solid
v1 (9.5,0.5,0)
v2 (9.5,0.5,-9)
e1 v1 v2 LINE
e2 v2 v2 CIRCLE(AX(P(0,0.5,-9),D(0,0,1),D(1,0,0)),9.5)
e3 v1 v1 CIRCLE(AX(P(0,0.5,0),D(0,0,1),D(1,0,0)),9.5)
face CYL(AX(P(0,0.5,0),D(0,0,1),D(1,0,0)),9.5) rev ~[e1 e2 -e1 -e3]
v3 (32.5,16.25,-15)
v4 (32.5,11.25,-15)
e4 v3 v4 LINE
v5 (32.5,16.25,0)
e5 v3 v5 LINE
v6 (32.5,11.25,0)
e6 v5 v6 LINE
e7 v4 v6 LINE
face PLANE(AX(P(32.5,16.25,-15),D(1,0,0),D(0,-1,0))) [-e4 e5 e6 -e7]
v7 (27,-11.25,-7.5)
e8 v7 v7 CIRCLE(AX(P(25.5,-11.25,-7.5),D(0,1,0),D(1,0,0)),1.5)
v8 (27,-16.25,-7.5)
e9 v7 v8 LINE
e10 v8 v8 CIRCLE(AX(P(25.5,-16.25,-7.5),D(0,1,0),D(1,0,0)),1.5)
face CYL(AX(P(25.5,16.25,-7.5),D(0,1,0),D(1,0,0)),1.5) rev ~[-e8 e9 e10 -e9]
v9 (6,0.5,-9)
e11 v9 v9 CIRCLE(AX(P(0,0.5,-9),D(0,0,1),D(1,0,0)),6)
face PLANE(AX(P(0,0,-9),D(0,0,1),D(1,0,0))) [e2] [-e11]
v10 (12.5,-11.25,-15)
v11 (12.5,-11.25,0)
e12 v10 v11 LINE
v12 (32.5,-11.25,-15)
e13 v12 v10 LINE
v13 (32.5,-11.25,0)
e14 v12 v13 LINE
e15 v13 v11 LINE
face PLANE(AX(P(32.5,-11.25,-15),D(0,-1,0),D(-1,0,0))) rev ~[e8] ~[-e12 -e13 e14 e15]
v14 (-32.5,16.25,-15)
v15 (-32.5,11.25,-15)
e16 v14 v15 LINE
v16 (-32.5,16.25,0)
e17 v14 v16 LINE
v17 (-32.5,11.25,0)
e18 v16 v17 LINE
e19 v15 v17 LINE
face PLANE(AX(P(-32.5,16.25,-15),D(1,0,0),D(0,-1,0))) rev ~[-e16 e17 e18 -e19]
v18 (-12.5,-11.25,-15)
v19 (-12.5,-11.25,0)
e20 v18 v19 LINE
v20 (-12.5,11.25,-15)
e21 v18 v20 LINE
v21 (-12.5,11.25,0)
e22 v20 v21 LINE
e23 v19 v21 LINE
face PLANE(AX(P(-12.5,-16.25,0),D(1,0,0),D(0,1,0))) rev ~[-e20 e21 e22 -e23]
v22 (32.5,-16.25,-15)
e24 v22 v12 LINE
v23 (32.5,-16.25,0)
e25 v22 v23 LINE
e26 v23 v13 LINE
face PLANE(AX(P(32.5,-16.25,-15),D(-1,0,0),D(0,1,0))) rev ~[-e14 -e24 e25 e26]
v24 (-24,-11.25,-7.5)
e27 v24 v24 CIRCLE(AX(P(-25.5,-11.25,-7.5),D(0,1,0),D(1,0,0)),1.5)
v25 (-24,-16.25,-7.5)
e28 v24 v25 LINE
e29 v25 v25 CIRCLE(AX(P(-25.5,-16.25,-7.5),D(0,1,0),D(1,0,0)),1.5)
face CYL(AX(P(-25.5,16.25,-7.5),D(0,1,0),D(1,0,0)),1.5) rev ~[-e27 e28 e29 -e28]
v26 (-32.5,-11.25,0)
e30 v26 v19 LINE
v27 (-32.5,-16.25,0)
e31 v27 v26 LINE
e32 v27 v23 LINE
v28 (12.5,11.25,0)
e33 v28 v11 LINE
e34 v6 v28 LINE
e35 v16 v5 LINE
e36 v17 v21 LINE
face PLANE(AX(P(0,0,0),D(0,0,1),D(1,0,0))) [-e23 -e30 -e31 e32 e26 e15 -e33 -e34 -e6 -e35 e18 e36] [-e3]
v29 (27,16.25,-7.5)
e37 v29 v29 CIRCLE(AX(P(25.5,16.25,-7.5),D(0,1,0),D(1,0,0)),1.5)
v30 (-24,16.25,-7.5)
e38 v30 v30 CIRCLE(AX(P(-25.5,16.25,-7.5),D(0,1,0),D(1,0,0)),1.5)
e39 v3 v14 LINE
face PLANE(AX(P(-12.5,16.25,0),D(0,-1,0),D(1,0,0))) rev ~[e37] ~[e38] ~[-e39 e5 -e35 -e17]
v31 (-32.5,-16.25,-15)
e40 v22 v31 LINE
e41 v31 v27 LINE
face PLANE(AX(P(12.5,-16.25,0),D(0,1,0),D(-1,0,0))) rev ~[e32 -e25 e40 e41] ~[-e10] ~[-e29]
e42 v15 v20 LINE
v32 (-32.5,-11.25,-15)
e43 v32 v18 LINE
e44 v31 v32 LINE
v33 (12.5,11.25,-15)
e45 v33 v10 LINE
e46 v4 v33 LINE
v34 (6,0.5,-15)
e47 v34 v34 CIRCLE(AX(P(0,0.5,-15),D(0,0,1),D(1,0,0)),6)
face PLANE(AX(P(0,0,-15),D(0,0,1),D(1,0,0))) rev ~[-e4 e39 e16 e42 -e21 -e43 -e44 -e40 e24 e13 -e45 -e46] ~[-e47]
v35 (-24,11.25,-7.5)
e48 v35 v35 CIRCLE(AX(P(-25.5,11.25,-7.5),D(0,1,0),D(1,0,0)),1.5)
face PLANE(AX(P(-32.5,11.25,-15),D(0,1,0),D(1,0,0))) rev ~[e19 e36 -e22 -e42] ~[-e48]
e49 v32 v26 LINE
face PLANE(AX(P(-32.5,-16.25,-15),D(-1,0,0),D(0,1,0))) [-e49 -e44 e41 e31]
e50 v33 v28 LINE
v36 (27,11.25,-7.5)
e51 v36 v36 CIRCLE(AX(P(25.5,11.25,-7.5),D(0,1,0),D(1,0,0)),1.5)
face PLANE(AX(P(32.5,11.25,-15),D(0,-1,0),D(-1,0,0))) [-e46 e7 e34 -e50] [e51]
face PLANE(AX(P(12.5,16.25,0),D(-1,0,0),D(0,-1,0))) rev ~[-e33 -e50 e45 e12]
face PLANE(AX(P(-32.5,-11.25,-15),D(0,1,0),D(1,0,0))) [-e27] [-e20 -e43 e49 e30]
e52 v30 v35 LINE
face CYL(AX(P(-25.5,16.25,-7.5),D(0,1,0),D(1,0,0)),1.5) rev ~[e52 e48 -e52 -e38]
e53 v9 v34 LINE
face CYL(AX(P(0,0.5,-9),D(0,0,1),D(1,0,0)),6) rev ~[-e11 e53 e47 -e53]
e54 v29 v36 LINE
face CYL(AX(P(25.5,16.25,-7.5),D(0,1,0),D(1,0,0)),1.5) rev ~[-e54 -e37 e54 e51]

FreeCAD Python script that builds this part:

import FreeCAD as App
import Part
import Sketcher


def add_polygon(sketch, points):
    """Adds a closed chain of lines whose ends are joined by coincident constraints."""
    first, n = sketch.GeometryCount, len(points)
    for a, b in zip(points, points[1:] + points[:1]):
        sketch.addGeometry(Part.LineSegment(App.Vector(*a, 0), App.Vector(*b, 0)), False)
    for i in range(n):
        sketch.addConstraint(Sketcher.Constraint("Coincident", first + i, 2, first + (i + 1) % n, 1))

doc = App.newDocument("Part")
body = doc.addObject("PartDesign::Body", "Body")

# Sketch on XY plane
sketch1 = body.newObject("Sketcher::SketchObject", "Sketch")
sketch1.AttachmentSupport = (doc.getObject("XY_Plane"), [""])
sketch1.MapMode = "FlatFace"
add_polygon(sketch1, [(12, 16), (-12, 16), (-12, -16), (12, -16)])  # lines 0-3
sketch1.addConstraint(Sketcher.Constraint("Horizontal", 0))
sketch1.addConstraint(Sketcher.Constraint("Vertical", 1))
sketch1.addConstraint(Sketcher.Constraint("Horizontal", 2))
sketch1.addConstraint(Sketcher.Constraint("Vertical", 3))
sketch1.addConstraint(Sketcher.Constraint("Symmetric", 0, 2, 2, 2, -1, 1))
sketch1.addConstraint(Sketcher.Constraint("DistanceX", 0, 2, 0, 1, 25.0))
sketch1.addConstraint(Sketcher.Constraint("DistanceY", 1, 2, 1, 1, 32.5))
pad1 = body.newObject("PartDesign::Pad", "Pad")
pad1.Profile = sketch1
pad1.Length = 15
pad1.Reversed = True

# Sketch on XY plane
sketch2 = body.newObject("Sketcher::SketchObject", "Sketch001")
sketch2.AttachmentSupport = (doc.getObject("XY_Plane"), [""])
sketch2.MapMode = "FlatFace"
sketch2.addGeometry(Part.Circle(App.Vector(0, 0, 0), App.Vector(0, 0, 1), 10), False)
sketch2.addConstraint(Sketcher.Constraint("PointOnObject", 0, 3, -2))
sketch2.addConstraint(Sketcher.Constraint("Diameter", 0, 19.0))
sketch2.addConstraint(Sketcher.Constraint("DistanceY", -1, 1, 0, 3, 0.5))
pocket1 = body.newObject("PartDesign::Pocket", "Pocket")
pocket1.Profile = sketch2
pocket1.Length = 9

# Sketch on XY plane
sketch3 = body.newObject("Sketcher::SketchObject", "Sketch002")
sketch3.AttachmentSupport = (doc.getObject("XY_Plane"), [""])
sketch3.MapMode = "FlatFace"
sketch3.AttachmentOffset = App.Placement(App.Vector(0, 0, -9), App.Rotation())
sketch3.addGeometry(Part.Circle(App.Vector(0, 0, 0), App.Vector(0, 0, 1), 6), False)
sketch3.addConstraint(Sketcher.Constraint("PointOnObject", 0, 3, -2))
sketch3.addConstraint(Sketcher.Constraint("Diameter", 0, 12.0))
sketch3.addConstraint(Sketcher.Constraint("DistanceY", -1, 1, 0, 3, 0.5))
pocket2 = body.newObject("PartDesign::Pocket", "Pocket001")
pocket2.Profile = sketch3
pocket2.Type = "ThroughAll"

# Sketch on XY plane
sketch4 = body.newObject("Sketcher::SketchObject", "Sketch003")
sketch4.AttachmentSupport = (doc.getObject("XY_Plane"), [""])
sketch4.MapMode = "FlatFace"
sketch4.AttachmentOffset = App.Placement(App.Vector(0, 0, -15), App.Rotation())
add_polygon(sketch4, [(12, 11), (12, 16), (32, 16), (32, 11)])  # lines 0-3
add_polygon(sketch4, [(-12, -11), (-12, -16), (-32, -16), (-32, -11)])  # lines 4-7
add_polygon(sketch4, [(32, -16), (12, -16), (12, -11), (32, -11)])  # lines 8-11
add_polygon(sketch4, [(-32, 16), (-12, 16), (-12, 11), (-32, 11)])  # lines 12-15
sketch4.addConstraint(Sketcher.Constraint("Vertical", 0))
sketch4.addConstraint(Sketcher.Constraint("Horizontal", 1))
sketch4.addConstraint(Sketcher.Constraint("Vertical", 2))
sketch4.addConstraint(Sketcher.Constraint("Horizontal", 3))
sketch4.addConstraint(Sketcher.Constraint("Vertical", 4))
sketch4.addConstraint(Sketcher.Constraint("Horizontal", 5))
sketch4.addConstraint(Sketcher.Constraint("Vertical", 6))
sketch4.addConstraint(Sketcher.Constraint("Horizontal", 7))
sketch4.addConstraint(Sketcher.Constraint("Horizontal", 8))
sketch4.addConstraint(Sketcher.Constraint("Vertical", 9))
sketch4.addConstraint(Sketcher.Constraint("Horizontal", 10))
sketch4.addConstraint(Sketcher.Constraint("Vertical", 11))
sketch4.addConstraint(Sketcher.Constraint("Horizontal", 12))
sketch4.addConstraint(Sketcher.Constraint("Vertical", 13))
sketch4.addConstraint(Sketcher.Constraint("Horizontal", 14))
sketch4.addConstraint(Sketcher.Constraint("Vertical", 15))
sketch4.addConstraint(Sketcher.Constraint("Symmetric", 0, 2, 4, 2, -1, 1))
sketch4.addConstraint(Sketcher.Constraint("Symmetric", 2, 2, 6, 2, -1, 1))
sketch4.addConstraint(Sketcher.Constraint("Symmetric", 8, 2, 12, 2, -1, 1))
sketch4.addConstraint(Sketcher.Constraint("Symmetric", 10, 2, 14, 2, -1, 1))
sketch4.addConstraint(Sketcher.Constraint("Symmetric", 4, 2, 8, 2, -2))
sketch4.addConstraint(Sketcher.Constraint("Symmetric", 6, 2, 10, 2, -2))
sketch4.addConstraint(Sketcher.Constraint("DistanceX", 1, 1, 1, 2, 20.0))
sketch4.addConstraint(Sketcher.Constraint("DistanceY", 0, 1, 0, 2, 5.0))
sketch4.addConstraint(Sketcher.Constraint("DistanceX", 4, 2, 3, 2, 25.0))
sketch4.addConstraint(Sketcher.Constraint("DistanceY", 4, 2, 3, 2, 27.5))
pad2 = body.newObject("PartDesign::Pad", "Pad001")
pad2.Profile = sketch4
pad2.Length = 15

# Sketch on XZ plane
sketch5 = body.newObject("Sketcher::SketchObject", "Sketch004")
sketch5.AttachmentSupport = (doc.getObject("XZ_Plane"), [""])
sketch5.MapMode = "FlatFace"
sketch5.AttachmentOffset = App.Placement(App.Vector(0, 0, -16.25), App.Rotation())
sketch5.addGeometry(Part.Circle(App.Vector(-25.5, -7.5, 0), App.Vector(0, 0, 1), 1.5), False)
sketch5.addGeometry(Part.Circle(App.Vector(25.5, -7.5, 0), App.Vector(0, 0, 1), 1.5), False)
sketch5.addConstraint(Sketcher.Constraint("Equal", 0, 1))
sketch5.addConstraint(Sketcher.Constraint("Symmetric", 0, 3, 1, 3, -2))
sketch5.addConstraint(Sketcher.Constraint("Diameter", 0, 3.0))
sketch5.addConstraint(Sketcher.Constraint("DistanceX", 0, 3, 1, 3, 51.0))
sketch5.addConstraint(Sketcher.Constraint("DistanceY", 0, 3, -1, 1, 7.5))
pocket3 = body.newObject("PartDesign::Pocket", "Pocket002")
pocket3.Profile = sketch5
pocket3.Type = "ThroughAll"
pocket3.Reversed = True

doc.recompute()
